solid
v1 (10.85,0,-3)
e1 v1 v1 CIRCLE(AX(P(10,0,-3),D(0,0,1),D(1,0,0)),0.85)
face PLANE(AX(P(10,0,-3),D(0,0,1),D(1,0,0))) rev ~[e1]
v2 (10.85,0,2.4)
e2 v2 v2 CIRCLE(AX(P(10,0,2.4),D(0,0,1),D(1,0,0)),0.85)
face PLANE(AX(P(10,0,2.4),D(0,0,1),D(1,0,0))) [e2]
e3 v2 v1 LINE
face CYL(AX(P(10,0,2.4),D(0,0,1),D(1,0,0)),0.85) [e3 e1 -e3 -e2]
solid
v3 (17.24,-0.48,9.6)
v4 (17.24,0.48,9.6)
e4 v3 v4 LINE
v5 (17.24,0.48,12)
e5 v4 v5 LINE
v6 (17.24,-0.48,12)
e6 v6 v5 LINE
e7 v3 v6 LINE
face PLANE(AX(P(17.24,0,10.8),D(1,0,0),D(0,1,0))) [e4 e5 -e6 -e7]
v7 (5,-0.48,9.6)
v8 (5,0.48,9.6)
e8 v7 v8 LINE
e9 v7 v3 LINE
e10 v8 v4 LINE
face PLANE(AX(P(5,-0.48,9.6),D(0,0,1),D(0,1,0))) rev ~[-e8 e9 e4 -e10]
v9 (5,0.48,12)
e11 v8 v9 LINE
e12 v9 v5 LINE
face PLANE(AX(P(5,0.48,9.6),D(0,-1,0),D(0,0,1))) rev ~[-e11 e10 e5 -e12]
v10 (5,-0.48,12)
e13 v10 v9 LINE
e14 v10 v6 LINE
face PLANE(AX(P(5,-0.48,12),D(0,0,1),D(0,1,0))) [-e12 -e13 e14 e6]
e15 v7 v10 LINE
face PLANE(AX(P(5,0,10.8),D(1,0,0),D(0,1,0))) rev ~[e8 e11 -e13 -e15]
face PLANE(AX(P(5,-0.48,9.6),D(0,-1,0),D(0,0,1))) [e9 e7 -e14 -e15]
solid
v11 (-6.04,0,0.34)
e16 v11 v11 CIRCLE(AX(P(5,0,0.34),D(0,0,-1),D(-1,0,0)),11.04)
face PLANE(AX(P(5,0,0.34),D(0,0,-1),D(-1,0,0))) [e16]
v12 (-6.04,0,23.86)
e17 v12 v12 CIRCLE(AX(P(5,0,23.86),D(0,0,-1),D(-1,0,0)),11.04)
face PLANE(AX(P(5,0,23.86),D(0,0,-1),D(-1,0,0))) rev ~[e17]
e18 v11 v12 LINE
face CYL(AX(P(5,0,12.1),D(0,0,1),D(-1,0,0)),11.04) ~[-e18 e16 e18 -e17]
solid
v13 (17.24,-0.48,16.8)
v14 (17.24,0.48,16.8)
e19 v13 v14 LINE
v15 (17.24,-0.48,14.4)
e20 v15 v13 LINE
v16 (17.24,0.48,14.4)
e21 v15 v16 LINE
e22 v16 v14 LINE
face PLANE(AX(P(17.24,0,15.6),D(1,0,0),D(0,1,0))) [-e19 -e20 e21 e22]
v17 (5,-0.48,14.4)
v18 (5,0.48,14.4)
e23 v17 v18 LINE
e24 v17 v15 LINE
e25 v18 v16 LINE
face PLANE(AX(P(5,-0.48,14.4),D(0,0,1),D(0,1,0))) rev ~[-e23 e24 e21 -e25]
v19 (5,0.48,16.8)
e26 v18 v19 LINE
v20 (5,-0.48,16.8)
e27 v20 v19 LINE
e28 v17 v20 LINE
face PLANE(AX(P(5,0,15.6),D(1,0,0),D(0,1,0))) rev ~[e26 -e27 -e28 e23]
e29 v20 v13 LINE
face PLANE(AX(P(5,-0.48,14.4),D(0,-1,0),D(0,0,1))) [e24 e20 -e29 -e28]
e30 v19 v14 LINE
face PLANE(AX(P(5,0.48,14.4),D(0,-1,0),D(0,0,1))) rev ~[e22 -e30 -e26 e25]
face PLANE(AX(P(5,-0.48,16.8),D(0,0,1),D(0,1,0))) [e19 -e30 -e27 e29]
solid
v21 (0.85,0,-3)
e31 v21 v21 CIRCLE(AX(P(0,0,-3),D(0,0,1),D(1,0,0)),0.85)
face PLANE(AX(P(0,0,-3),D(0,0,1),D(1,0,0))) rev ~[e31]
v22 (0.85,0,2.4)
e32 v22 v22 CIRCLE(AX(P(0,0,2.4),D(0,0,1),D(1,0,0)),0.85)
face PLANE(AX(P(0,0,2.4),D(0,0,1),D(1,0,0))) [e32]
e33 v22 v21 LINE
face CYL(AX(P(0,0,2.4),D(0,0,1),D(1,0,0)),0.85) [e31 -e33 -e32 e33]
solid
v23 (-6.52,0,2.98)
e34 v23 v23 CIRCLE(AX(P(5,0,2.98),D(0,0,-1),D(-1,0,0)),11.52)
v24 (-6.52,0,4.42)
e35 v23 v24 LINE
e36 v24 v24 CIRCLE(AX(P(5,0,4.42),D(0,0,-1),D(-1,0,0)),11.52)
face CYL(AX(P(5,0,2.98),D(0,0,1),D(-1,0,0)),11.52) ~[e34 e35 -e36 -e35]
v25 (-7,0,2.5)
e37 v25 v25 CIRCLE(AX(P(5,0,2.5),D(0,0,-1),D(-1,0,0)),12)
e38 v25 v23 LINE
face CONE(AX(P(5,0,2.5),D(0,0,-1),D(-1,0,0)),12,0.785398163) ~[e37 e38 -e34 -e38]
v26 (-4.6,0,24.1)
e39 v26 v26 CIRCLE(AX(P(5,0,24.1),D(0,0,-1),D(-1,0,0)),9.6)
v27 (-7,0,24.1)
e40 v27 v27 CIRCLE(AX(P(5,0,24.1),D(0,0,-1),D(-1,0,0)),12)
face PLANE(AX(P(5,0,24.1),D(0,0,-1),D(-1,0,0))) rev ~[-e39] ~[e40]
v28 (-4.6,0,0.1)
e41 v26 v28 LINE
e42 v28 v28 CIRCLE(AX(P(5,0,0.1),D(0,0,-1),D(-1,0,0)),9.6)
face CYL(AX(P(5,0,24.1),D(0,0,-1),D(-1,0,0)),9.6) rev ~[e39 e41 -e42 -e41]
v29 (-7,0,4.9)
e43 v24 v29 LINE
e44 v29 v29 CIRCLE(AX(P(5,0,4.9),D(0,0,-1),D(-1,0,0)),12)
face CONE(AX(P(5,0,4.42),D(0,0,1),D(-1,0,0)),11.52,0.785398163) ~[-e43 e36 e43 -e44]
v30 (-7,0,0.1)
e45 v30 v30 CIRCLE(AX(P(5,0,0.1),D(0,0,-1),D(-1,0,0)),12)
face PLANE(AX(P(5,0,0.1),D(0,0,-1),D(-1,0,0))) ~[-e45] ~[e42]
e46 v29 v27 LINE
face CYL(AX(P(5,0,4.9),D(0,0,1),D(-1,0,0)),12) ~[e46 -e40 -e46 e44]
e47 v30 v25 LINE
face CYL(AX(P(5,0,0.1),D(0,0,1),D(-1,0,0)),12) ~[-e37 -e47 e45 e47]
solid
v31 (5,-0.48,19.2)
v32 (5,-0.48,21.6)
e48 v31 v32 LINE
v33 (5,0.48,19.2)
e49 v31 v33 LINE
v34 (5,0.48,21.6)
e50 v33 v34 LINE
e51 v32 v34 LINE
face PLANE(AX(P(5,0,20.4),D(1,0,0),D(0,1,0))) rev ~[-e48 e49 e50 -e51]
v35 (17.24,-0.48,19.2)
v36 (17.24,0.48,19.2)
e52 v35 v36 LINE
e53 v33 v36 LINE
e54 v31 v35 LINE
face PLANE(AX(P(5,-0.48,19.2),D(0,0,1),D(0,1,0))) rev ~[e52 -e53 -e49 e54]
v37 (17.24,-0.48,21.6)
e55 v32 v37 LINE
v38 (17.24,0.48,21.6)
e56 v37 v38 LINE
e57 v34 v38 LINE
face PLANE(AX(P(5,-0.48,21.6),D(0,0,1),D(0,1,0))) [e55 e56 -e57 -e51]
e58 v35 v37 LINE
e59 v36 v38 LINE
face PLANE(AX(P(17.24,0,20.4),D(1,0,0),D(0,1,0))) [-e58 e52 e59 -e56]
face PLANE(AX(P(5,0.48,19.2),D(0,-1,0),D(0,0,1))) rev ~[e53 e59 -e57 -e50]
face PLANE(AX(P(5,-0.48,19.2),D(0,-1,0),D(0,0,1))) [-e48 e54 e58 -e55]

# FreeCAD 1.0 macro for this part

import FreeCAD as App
import Part
import Sketcher
from FreeCAD import Vector
Q = App.Units.Quantity

doc = App.newDocument("Part")
body = doc.addObject("PartDesign::Body", "Body")

sketch1 = body.newObject("Sketcher::SketchObject", "Sketch")
sketch1.AttachmentSupport = (doc.getObject("XZ_Plane"), [""])
sketch1.MapMode = "FlatFace"
sketch1.addGeometry(Part.LineSegment(Vector(-7, 2.5, 0), Vector(-7, 0.1, 0)), False)
sketch1.addGeometry(Part.LineSegment(Vector(-7, 0.1, 0), Vector(-4.6, 0.1, 0)), False)
sketch1.addGeometry(Part.LineSegment(Vector(-4.6, 0.1, 0), Vector(-4.6, 24.1, 0)), False)
sketch1.addGeometry(Part.LineSegment(Vector(-4.6, 24.1, 0), Vector(-7, 24.1, 0)), False)
sketch1.addGeometry(Part.LineSegment(Vector(-7, 24.1, 0), Vector(-7, 4.9, 0)), False)
sketch1.addGeometry(Part.LineSegment(Vector(-7, 4.9, 0), Vector(-6.5, 4.4, 0)), False)
sketch1.addGeometry(Part.LineSegment(Vector(-6.5, 4.4, 0), Vector(-6.5, 3, 0)), False)
sketch1.addGeometry(Part.LineSegment(Vector(-6.5, 3, 0), Vector(-7, 2.5, 0)), False)
sketch1.addGeometry(Part.LineSegment(Vector(5, 24.1, 0), Vector(5, 0.1, 0)), True)
sketch1.addConstraint(Sketcher.Constraint("Coincident", 0, 2, 1, 1))
sketch1.addConstraint(Sketcher.Constraint("Coincident", 1, 2, 2, 1))
sketch1.addConstraint(Sketcher.Constraint("Coincident", 2, 2, 3, 1))
sketch1.addConstraint(Sketcher.Constraint("Coincident", 3, 2, 4, 1))
sketch1.addConstraint(Sketcher.Constraint("Coincident", 4, 2, 5, 1))
sketch1.addConstraint(Sketcher.Constraint("Coincident", 5, 2, 6, 1))
sketch1.addConstraint(Sketcher.Constraint("Coincident", 6, 2, 7, 1))
sketch1.addConstraint(Sketcher.Constraint("Coincident", 7, 2, 0, 1))
sketch1.addConstraint(Sketcher.Constraint("Vertical", 0))
sketch1.addConstraint(Sketcher.Constraint("Horizontal", 1))
sketch1.addConstraint(Sketcher.Constraint("Vertical", 2))
sketch1.addConstraint(Sketcher.Constraint("Horizontal", 3))
sketch1.addConstraint(Sketcher.Constraint("Vertical", 4))
sketch1.addConstraint(Sketcher.Constraint("Vertical", 6))
sketch1.addConstraint(Sketcher.Constraint("Vertical", 8))
sketch1.addConstraint(Sketcher.Constraint("Perpendicular", 5, 7))
sketch1.addConstraint(Sketcher.Constraint("Horizontal", 3, 2, 8, 1))
sketch1.addConstraint(Sketcher.Constraint("Horizontal", 1, 2, 8, 2))
sketch1.addConstraint(Sketcher.Constraint("Vertical", 0, 2, 3, 2))
sketch1.addConstraint(Sketcher.Constraint("Equal", 3, 0))
sketch1.addConstraint(Sketcher.Constraint("Equal", 5, 7))
sketch1.addConstraint(Sketcher.Constraint("DistanceY", 2, 1, 2, 2, Q("24 mm")))
sketch1.addConstraint(Sketcher.Constraint("DistanceX", 1, 1, 1, 2, Q("2.4 mm")))
sketch1.addConstraint(Sketcher.Constraint("DistanceY", 4, 2, 4, 1, Q("19.2 mm")))
sketch1.addConstraint(Sketcher.Constraint("DistanceX", 0, 2, -1, 1, Q("7 mm")))
sketch1.addConstraint(Sketcher.Constraint("DistanceX", -1, 1, 8, 1, Q("5 mm")))
sketch1.addConstraint(Sketcher.Constraint("DistanceY", 6, 2, 6, 1, Q("1.44 mm")))
sketch1.addConstraint(Sketcher.Constraint("DistanceY", -1, 1, 0, 2, Q("0.1 mm")))
revolution = body.newObject("PartDesign::Revolution", "Revolution")
revolution.Profile = sketch1
revolution.ReferenceAxis = (sketch1, ["Axis0"])
revolution.Angle = 360
body2 = doc.addObject("PartDesign::Body", "Body001")

sketch2 = body2.newObject("Sketcher::SketchObject", "Sketch001")
sketch2.AttachmentSupport = (doc.getObject("XZ_Plane001"), [""])
sketch2.MapMode = "FlatFace"
sketch2.addGeometry(Part.LineSegment(Vector(-6, 24, 0), Vector(-6, 0, 0)), False)
sketch2.addGeometry(Part.LineSegment(Vector(-6, 0, 0), Vector(5, 0, 0)), False)
sketch2.addGeometry(Part.LineSegment(Vector(5, 0, 0), Vector(5, 24, 0)), False)
sketch2.addGeometry(Part.LineSegment(Vector(5, 24, 0), Vector(-6, 24, 0)), False)
sketch2.addGeometry(Part.LineSegment(Vector(5, 24, 0), Vector(5, 0, 0)), True)
sketch2.addConstraint(Sketcher.Constraint("Coincident", 0, 2, 1, 1))
sketch2.addConstraint(Sketcher.Constraint("Coincident", 1, 2, 2, 1))
sketch2.addConstraint(Sketcher.Constraint("Coincident", 2, 2, 3, 1))
sketch2.addConstraint(Sketcher.Constraint("Coincident", 3, 2, 0, 1))
sketch2.addConstraint(Sketcher.Constraint("Vertical", 0))
sketch2.addConstraint(Sketcher.Constraint("Horizontal", 1))
sketch2.addConstraint(Sketcher.Constraint("Vertical", 2))
sketch2.addConstraint(Sketcher.Constraint("Horizontal", 3))
sketch2.addConstraint(Sketcher.Constraint("Vertical", 4))
sketch2.addConstraint(Sketcher.Constraint("Coincident", 4, 1, 2, 2))
sketch2.addConstraint(Sketcher.Constraint("Horizontal", 0, 2, 4, 2))
sketch2.addConstraint(Sketcher.Constraint("DistanceX", -1, 1, 1, 2, Q("5 mm")))
sketch2.addConstraint(Sketcher.Constraint("DistanceX", 1, 1, 1, 2, Q("11.04 mm")))
sketch2.addConstraint(Sketcher.Constraint("DistanceY", 0, 2, 0, 1, Q("23.52 mm")))
sketch2.addConstraint(Sketcher.Constraint("DistanceY", -1, 1, 0, 2, Q("0.34 mm")))
revolution2 = body2.newObject("PartDesign::Revolution", "Revolution001")
revolution2.Profile = sketch2
revolution2.ReferenceAxis = (sketch2, ["Axis0"])
revolution2.Angle = 360
body3 = doc.addObject("PartDesign::Body", "Body002")
body3.AllowCompound = True

sketch3 = body3.newObject("Sketcher::SketchObject", "Sketch002")
sketch3.AttachmentSupport = (doc.getObject("XY_Plane002"), [""])
sketch3.MapMode = "FlatFace"
sketch3.AttachmentOffset = App.Placement(Vector(0, 0, 2.4), App.Rotation())
sketch3.addGeometry(Part.Circle(Vector(0, 0, 0), Vector(0, 0, 1), 0.8), False)
sketch3.addGeometry(Part.Circle(Vector(10, 0, 0), Vector(0, 0, 1), 0.8), False)
sketch3.addConstraint(Sketcher.Constraint("Coincident", 0, 3, -1, 1))
sketch3.addConstraint(Sketcher.Constraint("Equal", 0, 1))
sketch3.addConstraint(Sketcher.Constraint("PointOnObject", 1, 3, -1))
sketch3.addConstraint(Sketcher.Constraint("Diameter", 0, Q("1.7 mm")))
sketch3.addConstraint(Sketcher.Constraint("DistanceX", -1, 1, 1, 3, Q("10 mm")))
pad1 = body3.newObject("PartDesign::Pad", "Pad")
pad1.Profile = sketch3
pad1.Length = 5.4
pad1.Reversed = True
body4 = doc.addObject("PartDesign::Body", "Body003")
body4.AllowCompound = True

sketch4 = body4.newObject("Sketcher::SketchObject", "Sketch003")
sketch4.AttachmentSupport = (doc.getObject("YZ_Plane003"), [""])
sketch4.MapMode = "FlatFace"
sketch4.AttachmentOffset = App.Placement(Vector(0, 0, 5), App.Rotation())
sketch4.addGeometry(Part.LineSegment(Vector(-0.5, 12, 0), Vector(-0.5, 9.6, 0)), False)
sketch4.addGeometry(Part.LineSegment(Vector(-0.5, 9.6, 0), Vector(0.5, 9.6, 0)), False)
sketch4.addGeometry(Part.LineSegment(Vector(0.5, 9.6, 0), Vector(0.5, 12, 0)), False)
sketch4.addGeometry(Part.LineSegment(Vector(0.5, 12, 0), Vector(-0.5, 12, 0)), False)
sketch4.addGeometry(Part.LineSegment(Vector(-0.5, 16.8, 0), Vector(-0.5, 14.4, 0)), False)
sketch4.addGeometry(Part.LineSegment(Vector(-0.5, 14.4, 0), Vector(0.5, 14.4, 0)), False)
sketch4.addGeometry(Part.LineSegment(Vector(0.5, 14.4, 0), Vector(0.5, 16.8, 0)), False)
sketch4.addGeometry(Part.LineSegment(Vector(0.5, 16.8, 0), Vector(-0.5, 16.8, 0)), False)
sketch4.addGeometry(Part.LineSegment(Vector(-0.5, 21.6, 0), Vector(-0.5, 19.2, 0)), False)
sketch4.addGeometry(Part.LineSegment(Vector(-0.5, 19.2, 0), Vector(0.5, 19.2, 0)), False)
sketch4.addGeometry(Part.LineSegment(Vector(0.5, 19.2, 0), Vector(0.5, 21.6, 0)), False)
sketch4.addGeometry(Part.LineSegment(Vector(0.5, 21.6, 0), Vector(-0.5, 21.6, 0)), False)
sketch4.addConstraint(Sketcher.Constraint("Coincident", 0, 2, 1, 1))
sketch4.addConstraint(Sketcher.Constraint("Coincident", 1, 2, 2, 1))
sketch4.addConstraint(Sketcher.Constraint("Coincident", 2, 2, 3, 1))
sketch4.addConstraint(Sketcher.Constraint("Coincident", 3, 2, 0, 1))
sketch4.addConstraint(Sketcher.Constraint("Coincident", 4, 2, 5, 1))
sketch4.addConstraint(Sketcher.Constraint("Coincident", 5, 2, 6, 1))
sketch4.addConstraint(Sketcher.Constraint("Coincident", 6, 2, 7, 1))
sketch4.addConstraint(Sketcher.Constraint("Coincident", 7, 2, 4, 1))
sketch4.addConstraint(Sketcher.Constraint("Coincident", 8, 2, 9, 1))
sketch4.addConstraint(Sketcher.Constraint("Coincident", 9, 2, 10, 1))
sketch4.addConstraint(Sketcher.Constraint("Coincident", 10, 2, 11, 1))
sketch4.addConstraint(Sketcher.Constraint("Coincident", 11, 2, 8, 1))
sketch4.addConstraint(Sketcher.Constraint("Vertical", 0))
sketch4.addConstraint(Sketcher.Constraint("Horizontal", 1))
sketch4.addConstraint(Sketcher.Constraint("Vertical", 2))
sketch4.addConstraint(Sketcher.Constraint("Horizontal", 3))
sketch4.addConstraint(Sketcher.Constraint("Vertical", 4))
sketch4.addConstraint(Sketcher.Constraint("Horizontal", 5))
sketch4.addConstraint(Sketcher.Constraint("Vertical", 6))
sketch4.addConstraint(Sketcher.Constraint("Horizontal", 7))
sketch4.addConstraint(Sketcher.Constraint("Vertical", 8))
sketch4.addConstraint(Sketcher.Constraint("Horizontal", 9))
sketch4.addConstraint(Sketcher.Constraint("Vertical", 10))
sketch4.addConstraint(Sketcher.Constraint("Horizontal", 11))
sketch4.addConstraint(Sketcher.Constraint("Vertical", 3, 2, 4, 2))
sketch4.addConstraint(Sketcher.Constraint("Vertical", 2, 2, 5, 2))
sketch4.addConstraint(Sketcher.Constraint("Vertical", 7, 2, 8, 2))
sketch4.addConstraint(Sketcher.Constraint("Vertical", 6, 2, 9, 2))
sketch4.addConstraint(Sketcher.Constraint("Equal", 2, 4))
sketch4.addConstraint(Sketcher.Constraint("Equal", 6, 8))
sketch4.addConstraint(Sketcher.Constraint("DistanceY", 0, 2, 0, 1, Q("2.4 mm")))
sketch4.addConstraint(Sketcher.Constraint("DistanceY", -1, 1, 2, 2, Q("12 mm")))
sketch4.addConstraint(Sketcher.Constraint("DistanceX", 1, 1, 1, 2, Q("0.96 mm")))
sketch4.addConstraint(Sketcher.Constraint("DistanceY", -1, 1, 4, 2, Q("14.4 mm")))
sketch4.addConstraint(Sketcher.Constraint("DistanceY", -1, 1, 8, 2, Q("19.2 mm")))
sketch4.addConstraint(Sketcher.Constraint("DistanceX", 0, 2, -1, 1, Q("0.48 mm")))
pad2 = body4.newObject("PartDesign::Pad", "Pad001")
pad2.Profile = sketch4
pad2.Length = 12.24

doc.recompute()
